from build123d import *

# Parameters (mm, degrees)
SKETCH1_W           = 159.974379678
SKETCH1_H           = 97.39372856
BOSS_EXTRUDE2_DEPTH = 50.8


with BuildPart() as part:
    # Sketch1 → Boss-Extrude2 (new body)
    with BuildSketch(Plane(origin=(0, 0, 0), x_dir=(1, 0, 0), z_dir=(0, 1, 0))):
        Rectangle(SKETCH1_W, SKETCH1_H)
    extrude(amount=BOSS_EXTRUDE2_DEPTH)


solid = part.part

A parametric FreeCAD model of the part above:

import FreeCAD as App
import Part
import Sketcher
Q = App.Units.Quantity


def add_polygon(sketch, points):
    """Adds a closed chain of lines whose ends are joined by coincident constraints."""
    first, n = sketch.GeometryCount, len(points)
    for a, b in zip(points, points[1:] + points[:1]):
        sketch.addGeometry(Part.LineSegment(App.Vector(*a, 0), App.Vector(*b, 0)), False)
    for i in range(n):
        sketch.addConstraint(Sketcher.Constraint("Coincident", first + i, 2, first + (i + 1) % n, 1))

doc = App.newDocument("Part")
body = doc.addObject("PartDesign::Body", "Body")

# Sketch on XZ plane
sketch1 = body.newObject("Sketcher::SketchObject", "Sketch")
sketch1.AttachmentSupport = (doc.getObject("XZ_Plane"), [""])
sketch1.MapMode = "FlatFace"
add_polygon(sketch1, [(-80, -49), (-80, 49), (80, 49), (80, -49)])  # lines 0-3
sketch1.addConstraint([
    Sketcher.Constraint("Vertical", 0),
    Sketcher.Constraint("Horizontal", 1),
    Sketcher.Constraint("Vertical", 2),
    Sketcher.Constraint("Horizontal", 3),
    Sketcher.Constraint("Symmetric", 0, 2, 2, 2, -1, 1),
    Sketcher.Constraint("DistanceX", 1, 1, 1, 2, Q("159.97438 mm")),
    Sketcher.Constraint("DistanceY", 0, 1, 0, 2, Q("97.393729 mm")),
])
pad1 = body.newObject("PartDesign::Pad", "Pad")
pad1.Profile = sketch1
pad1.Length = Q("2 in")
pad1.Reversed = True

doc.recompute()
